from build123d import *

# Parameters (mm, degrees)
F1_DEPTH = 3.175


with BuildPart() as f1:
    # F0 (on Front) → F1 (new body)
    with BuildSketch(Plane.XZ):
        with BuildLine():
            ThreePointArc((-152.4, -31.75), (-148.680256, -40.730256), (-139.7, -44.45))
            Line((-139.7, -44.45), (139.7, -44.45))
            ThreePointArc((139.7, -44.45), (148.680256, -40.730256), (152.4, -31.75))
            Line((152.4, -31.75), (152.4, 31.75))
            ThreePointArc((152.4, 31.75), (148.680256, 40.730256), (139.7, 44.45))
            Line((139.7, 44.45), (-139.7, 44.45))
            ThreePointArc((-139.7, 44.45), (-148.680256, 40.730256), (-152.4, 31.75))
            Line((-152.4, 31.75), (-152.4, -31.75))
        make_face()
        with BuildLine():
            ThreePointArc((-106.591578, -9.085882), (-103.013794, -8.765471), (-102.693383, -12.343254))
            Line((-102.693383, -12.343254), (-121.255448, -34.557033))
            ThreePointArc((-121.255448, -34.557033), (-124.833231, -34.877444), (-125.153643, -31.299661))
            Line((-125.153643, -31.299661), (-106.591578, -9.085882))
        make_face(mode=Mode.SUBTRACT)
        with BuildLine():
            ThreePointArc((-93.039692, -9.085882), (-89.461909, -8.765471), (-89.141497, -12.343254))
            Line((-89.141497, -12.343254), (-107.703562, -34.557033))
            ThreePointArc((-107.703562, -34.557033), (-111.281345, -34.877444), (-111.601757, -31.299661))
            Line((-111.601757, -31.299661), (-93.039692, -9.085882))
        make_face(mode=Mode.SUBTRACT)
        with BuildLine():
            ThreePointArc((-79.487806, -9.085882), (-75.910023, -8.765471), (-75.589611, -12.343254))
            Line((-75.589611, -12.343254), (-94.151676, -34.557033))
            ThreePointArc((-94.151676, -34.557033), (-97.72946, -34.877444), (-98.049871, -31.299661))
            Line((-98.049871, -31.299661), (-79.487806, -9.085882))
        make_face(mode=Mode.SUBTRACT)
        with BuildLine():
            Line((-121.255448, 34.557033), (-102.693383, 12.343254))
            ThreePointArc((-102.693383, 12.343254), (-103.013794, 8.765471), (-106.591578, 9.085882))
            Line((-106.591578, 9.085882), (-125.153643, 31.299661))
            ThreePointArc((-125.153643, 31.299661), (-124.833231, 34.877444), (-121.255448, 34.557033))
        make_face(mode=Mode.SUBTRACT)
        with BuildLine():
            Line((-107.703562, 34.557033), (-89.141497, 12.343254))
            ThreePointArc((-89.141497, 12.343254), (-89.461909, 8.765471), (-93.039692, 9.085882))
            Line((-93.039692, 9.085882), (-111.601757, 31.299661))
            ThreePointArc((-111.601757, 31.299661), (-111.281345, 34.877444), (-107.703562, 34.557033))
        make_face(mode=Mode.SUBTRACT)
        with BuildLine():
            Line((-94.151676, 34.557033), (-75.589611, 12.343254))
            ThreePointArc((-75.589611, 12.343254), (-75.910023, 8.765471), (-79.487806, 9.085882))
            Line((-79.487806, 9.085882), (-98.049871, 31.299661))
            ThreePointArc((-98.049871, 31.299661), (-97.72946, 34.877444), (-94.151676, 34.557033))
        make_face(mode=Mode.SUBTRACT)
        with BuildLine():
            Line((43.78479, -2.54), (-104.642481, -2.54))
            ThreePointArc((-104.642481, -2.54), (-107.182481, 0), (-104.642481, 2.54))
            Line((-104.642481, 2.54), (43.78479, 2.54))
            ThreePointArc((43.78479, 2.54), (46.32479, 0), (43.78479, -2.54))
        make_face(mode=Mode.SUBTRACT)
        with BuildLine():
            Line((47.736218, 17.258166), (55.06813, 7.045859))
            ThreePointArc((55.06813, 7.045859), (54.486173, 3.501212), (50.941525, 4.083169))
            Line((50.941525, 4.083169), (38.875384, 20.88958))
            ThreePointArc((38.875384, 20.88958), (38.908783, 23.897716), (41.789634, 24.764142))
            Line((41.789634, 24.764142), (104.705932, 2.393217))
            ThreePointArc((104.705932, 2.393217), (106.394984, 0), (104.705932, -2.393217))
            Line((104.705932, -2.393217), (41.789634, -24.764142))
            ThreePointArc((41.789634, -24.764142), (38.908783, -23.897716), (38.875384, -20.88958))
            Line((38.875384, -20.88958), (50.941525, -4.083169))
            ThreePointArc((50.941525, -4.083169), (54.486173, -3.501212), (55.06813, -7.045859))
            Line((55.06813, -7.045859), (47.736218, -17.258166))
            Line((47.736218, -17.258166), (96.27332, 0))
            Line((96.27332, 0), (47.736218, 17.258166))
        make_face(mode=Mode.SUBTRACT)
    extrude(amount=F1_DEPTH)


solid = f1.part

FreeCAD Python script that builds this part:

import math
import FreeCAD as App
import Part
import Sketcher
Q = App.Units.Quantity

doc = App.newDocument("Part")
body = doc.addObject("PartDesign::Body", "Body")

# Sketch on XZ plane
sketch1 = body.newObject("Sketcher::SketchObject", "Sketch")
sketch1.AttachmentSupport = (doc.getObject("XZ_Plane"), [""])
sketch1.MapMode = "FlatFace"
sketch1.addGeometry([
    Part.ArcOfCircle(Part.Circle(App.Vector(-139.7, -31.75, 0), App.Vector(0, 0, 1), 12.7), math.radians(-179.999998), math.radians(-90.000002)),  # 0
    Part.LineSegment(App.Vector(-139.7, -44.45, 0), App.Vector(139.7, -44.45, 0)),  # 1
    Part.ArcOfCircle(Part.Circle(App.Vector(139.7, -31.75, 0), App.Vector(0, 0, 1), 12.7), math.radians(-89.999998), math.radians(-0.000002)),  # 2
    Part.LineSegment(App.Vector(152.4, -31.75, 0), App.Vector(152.4, 31.75, 0)),  # 3
    Part.ArcOfCircle(Part.Circle(App.Vector(139.7, 31.75, 0), App.Vector(0, 0, 1), 12.7), math.radians(0.000002), math.radians(89.999998)),  # 4
    Part.LineSegment(App.Vector(139.7, 44.45, 0), App.Vector(-139.7, 44.45, 0)),  # 5
    Part.ArcOfCircle(Part.Circle(App.Vector(-139.7, 31.75, 0), App.Vector(0, 0, 1), 12.7), math.radians(90.000002), math.radians(179.999998)),  # 6
    Part.LineSegment(App.Vector(-152.4, 31.75, 0), App.Vector(-152.4, -31.75, 0)),  # 7
    Part.LineSegment(App.Vector(-125.153643, -31.299661, 0), App.Vector(-106.591578, -9.085882, 0)),  # 8
    Part.ArcOfCircle(Part.Circle(App.Vector(-104.642481, -10.714568, 0), App.Vector(0, 0, 1), 2.54), math.radians(-39.882478), math.radians(140.11752)),  # 9
    Part.LineSegment(App.Vector(-102.693383, -12.343254, 0), App.Vector(-121.255448, -34.557033, 0)),  # 10
    Part.ArcOfCircle(Part.Circle(App.Vector(-123.204545, -32.928346, 0), App.Vector(0, 0, 1), 2.54), math.radians(140.117537), math.radians(320.117505)),  # 11
    Part.LineSegment(App.Vector(-111.601757, -31.299661, 0), App.Vector(-93.039692, -9.085882, 0)),  # 12
    Part.ArcOfCircle(Part.Circle(App.Vector(-91.090595, -10.714569, 0), App.Vector(0, 0, 1), 2.54), math.radians(-39.882463), math.radians(140.117505)),  # 13
    Part.LineSegment(App.Vector(-89.141497, -12.343254, 0), App.Vector(-107.703562, -34.557033, 0)),  # 14
    Part.ArcOfCircle(Part.Circle(App.Vector(-109.652659, -32.928346, 0), App.Vector(0, 0, 1), 2.54), math.radians(140.117537), math.radians(320.117505)),  # 15
    Part.LineSegment(App.Vector(-98.049871, -31.299661, 0), App.Vector(-79.487806, -9.085882, 0)),  # 16
    Part.ArcOfCircle(Part.Circle(App.Vector(-77.538709, -10.714569, 0), App.Vector(0, 0, 1), 2.54), math.radians(-39.882463), math.radians(140.117505)),  # 17
    Part.LineSegment(App.Vector(-75.589611, -12.343254, 0), App.Vector(-94.151676, -34.557033, 0)),  # 18
    Part.ArcOfCircle(Part.Circle(App.Vector(-96.100773, -32.928347, 0), App.Vector(0, 0, 1), 2.54), math.radians(140.117522), math.radians(320.11752)),  # 19
    Part.ArcOfCircle(Part.Circle(App.Vector(43.78479, 0, 0), App.Vector(0, 0, 1), 2.54), math.radians(-90), math.radians(90)),  # 20
    Part.LineSegment(App.Vector(43.78479, -2.54, 0), App.Vector(-104.642481, -2.54, 0)),  # 21
    Part.ArcOfCircle(Part.Circle(App.Vector(-104.642481, 0, 0), App.Vector(0, 0, 1), 2.54), math.radians(90), math.radians(270)),  # 22
    Part.LineSegment(App.Vector(-104.642481, 2.54, 0), App.Vector(43.78479, 2.54, 0)),  # 23
    Part.ArcOfCircle(Part.Circle(App.Vector(-123.204545, 32.928346, 0), App.Vector(0, 0, 1), 2.54), math.radians(39.882495), math.radians(219.882463)),  # 24
    Part.LineSegment(App.Vector(-121.255448, 34.557033, 0), App.Vector(-102.693383, 12.343254, 0)),  # 25
    Part.ArcOfCircle(Part.Circle(App.Vector(-104.642481, 10.714568, 0), App.Vector(0, 0, 1), 2.54), math.radians(-140.11752), math.radians(39.882478)),  # 26
    Part.LineSegment(App.Vector(-106.591578, 9.085882, 0), App.Vector(-125.153643, 31.299661, 0)),  # 27
    Part.ArcOfCircle(Part.Circle(App.Vector(-109.652659, 32.928346, 0), App.Vector(0, 0, 1), 2.54), math.radians(39.882495), math.radians(219.882463)),  # 28
    Part.LineSegment(App.Vector(-107.703562, 34.557033, 0), App.Vector(-89.141497, 12.343254, 0)),  # 29
    Part.ArcOfCircle(Part.Circle(App.Vector(-91.090595, 10.714569, 0), App.Vector(0, 0, 1), 2.54), math.radians(-140.117505), math.radians(39.882463)),  # 30
    Part.LineSegment(App.Vector(-93.039692, 9.085882, 0), App.Vector(-111.601757, 31.299661, 0)),  # 31
    Part.ArcOfCircle(Part.Circle(App.Vector(-96.100773, 32.928347, 0), App.Vector(0, 0, 1), 2.54), math.radians(39.88248), math.radians(219.882478)),  # 32
    Part.LineSegment(App.Vector(-94.151676, 34.557033, 0), App.Vector(-75.589611, 12.343254, 0)),  # 33
    Part.ArcOfCircle(Part.Circle(App.Vector(-77.538709, 10.714569, 0), App.Vector(0, 0, 1), 2.54), math.radians(-140.117505), math.radians(39.882463)),  # 34
    Part.LineSegment(App.Vector(-79.487806, 9.085882, 0), App.Vector(-98.049871, 31.299661, 0)),  # 35
    Part.LineSegment(App.Vector(96.27332, 0, 0), App.Vector(47.736218, 17.258166, 0)),  # 36
    Part.LineSegment(App.Vector(47.736218, 17.258166, 0), App.Vector(55.06813, 7.045859, 0)),  # 37
    Part.ArcOfCircle(Part.Circle(App.Vector(53.004827, 5.564514, 0), App.Vector(0, 0, 1), 2.54), math.radians(-144.323596), math.radians(35.676399)),  # 38
    Part.LineSegment(App.Vector(50.941525, 4.083169, 0), App.Vector(38.875384, 20.88958, 0)),  # 39
    Part.ArcOfCircle(Part.Circle(App.Vector(40.938687, 22.370925, 0), App.Vector(0, 0, 1), 2.54), math.radians(70.426328), math.radians(215.676396)),  # 40
    Part.LineSegment(App.Vector(41.789634, 24.764142, 0), App.Vector(104.705932, 2.393217, 0)),  # 41
    Part.ArcOfCircle(Part.Circle(App.Vector(103.854984, 0, 0), App.Vector(0, 0, 1), 2.54), math.radians(-70.426312), math.radians(70.426312)),  # 42
    Part.LineSegment(App.Vector(104.705932, -2.393217, 0), App.Vector(41.789634, -24.764142, 0)),  # 43
    Part.ArcOfCircle(Part.Circle(App.Vector(40.938687, -22.370925, 0), App.Vector(0, 0, 1), 2.54), math.radians(144.323604), math.radians(289.573672)),  # 44
    Part.LineSegment(App.Vector(38.875384, -20.88958, 0), App.Vector(50.941525, -4.083169, 0)),  # 45
    Part.ArcOfCircle(Part.Circle(App.Vector(53.004827, -5.564514, 0), App.Vector(0, 0, 1), 2.54), math.radians(-35.676399), math.radians(144.323596)),  # 46
    Part.LineSegment(App.Vector(55.06813, -7.045859, 0), App.Vector(47.736218, -17.258166, 0)),  # 47
    Part.LineSegment(App.Vector(47.736218, -17.258166, 0), App.Vector(96.27332, 0, 0)),  # 48
], False)
sketch1.addConstraint([
    Sketcher.Constraint("Coincident", 0, 2, 1, 1),
    Sketcher.Constraint("Coincident", 1, 2, 2, 1),
    Sketcher.Constraint("Coincident", 2, 2, 3, 1),
    Sketcher.Constraint("Coincident", 3, 2, 4, 1),
    Sketcher.Constraint("Coincident", 4, 2, 5, 1),
    Sketcher.Constraint("Coincident", 5, 2, 6, 1),
    Sketcher.Constraint("Coincident", 6, 2, 7, 1),
    Sketcher.Constraint("Coincident", 7, 2, 0, 1),
    Sketcher.Constraint("Coincident", 8, 2, 9, 2),
    Sketcher.Constraint("Coincident", 9, 1, 10, 1),
    Sketcher.Constraint("Coincident", 10, 2, 11, 2),
    Sketcher.Constraint("Coincident", 11, 1, 8, 1),
    Sketcher.Constraint("Coincident", 12, 2, 13, 2),
    Sketcher.Constraint("Coincident", 13, 1, 14, 1),
    Sketcher.Constraint("Coincident", 14, 2, 15, 2),
    Sketcher.Constraint("Coincident", 15, 1, 12, 1),
    Sketcher.Constraint("Coincident", 16, 2, 17, 2),
    Sketcher.Constraint("Coincident", 17, 1, 18, 1),
    Sketcher.Constraint("Coincident", 18, 2, 19, 2),
    Sketcher.Constraint("Coincident", 19, 1, 16, 1),
    Sketcher.Constraint("Coincident", 20, 1, 21, 1),
    Sketcher.Constraint("Coincident", 21, 2, 22, 2),
    Sketcher.Constraint("Coincident", 22, 1, 23, 1),
    Sketcher.Constraint("Coincident", 23, 2, 20, 2),
    Sketcher.Constraint("Coincident", 24, 1, 25, 1),
    Sketcher.Constraint("Coincident", 25, 2, 26, 2),
    Sketcher.Constraint("Coincident", 26, 1, 27, 1),
    Sketcher.Constraint("Coincident", 27, 2, 24, 2),
    Sketcher.Constraint("Coincident", 28, 1, 29, 1),
    Sketcher.Constraint("Coincident", 29, 2, 30, 2),
    Sketcher.Constraint("Coincident", 30, 1, 31, 1),
    Sketcher.Constraint("Coincident", 31, 2, 28, 2),
    Sketcher.Constraint("Coincident", 32, 1, 33, 1),
    Sketcher.Constraint("Coincident", 33, 2, 34, 2),
    Sketcher.Constraint("Coincident", 34, 1, 35, 1),
    Sketcher.Constraint("Coincident", 35, 2, 32, 2),
    Sketcher.Constraint("Coincident", 36, 2, 37, 1),
    Sketcher.Constraint("Coincident", 37, 2, 38, 2),
    Sketcher.Constraint("Coincident", 38, 1, 39, 1),
    Sketcher.Constraint("Coincident", 39, 2, 40, 2),
    Sketcher.Constraint("Coincident", 40, 1, 41, 1),
    Sketcher.Constraint("Coincident", 41, 2, 42, 2),
    Sketcher.Constraint("Coincident", 42, 1, 43, 1),
    Sketcher.Constraint("Coincident", 43, 2, 44, 2),
    Sketcher.Constraint("Coincident", 44, 1, 45, 1),
    Sketcher.Constraint("Coincident", 45, 2, 46, 2),
    Sketcher.Constraint("Coincident", 46, 1, 47, 1),
    Sketcher.Constraint("Coincident", 47, 2, 48, 1),
    Sketcher.Constraint("Coincident", 48, 2, 36, 1),
    Sketcher.Constraint("Horizontal", 1),
    Sketcher.Constraint("Vertical", 3),
    Sketcher.Constraint("Horizontal", 5),
    Sketcher.Constraint("Vertical", 7),
    Sketcher.Constraint("Horizontal", 21),
    Sketcher.Constraint("Horizontal", 23),
    Sketcher.Constraint("PointOnObject", 20, 3, -1),
    Sketcher.Constraint("PointOnObject", 42, 3, -1),
    Sketcher.Constraint("PointOnObject", 48, 2, -1),
    Sketcher.Constraint("Radius", 0, Q("0.5 in")),
    Sketcher.Constraint("Radius", 2, Q("0.5 in")),
    Sketcher.Constraint("Radius", 4, Q("0.5 in")),
    Sketcher.Constraint("Radius", 6, Q("0.5 in")),
    Sketcher.Constraint("Radius", 9, Q("0.1 in")),
    Sketcher.Constraint("Radius", 11, Q("0.1 in")),
    Sketcher.Constraint("Radius", 13, Q("0.1 in")),
    Sketcher.Constraint("Radius", 15, Q("0.1 in")),
    Sketcher.Constraint("Radius", 17, Q("0.1 in")),
    Sketcher.Constraint("Radius", 19, Q("0.1 in")),
    Sketcher.Constraint("Radius", 20, Q("0.1 in")),
    Sketcher.Constraint("Radius", 24, Q("0.1 in")),
    Sketcher.Constraint("Radius", 26, Q("0.1 in")),
    Sketcher.Constraint("Radius", 28, Q("0.1 in")),
    Sketcher.Constraint("Radius", 30, Q("0.1 in")),
    Sketcher.Constraint("Radius", 32, Q("0.1 in")),
    Sketcher.Constraint("Radius", 34, Q("0.1 in")),
    Sketcher.Constraint("Radius", 38, Q("0.1 in")),
    Sketcher.Constraint("Radius", 40, Q("0.1 in")),
    Sketcher.Constraint("Radius", 42, Q("0.1 in")),
    Sketcher.Constraint("Radius", 44, Q("0.1 in")),
    Sketcher.Constraint("Radius", 46, Q("0.1 in")),
    Sketcher.Constraint("DistanceX", 1, 1, 1, 2, Q("11 in")),
    Sketcher.Constraint("DistanceX", 5, 2, 5, 1, Q("11 in")),
    Sketcher.Constraint("DistanceY", 3, 1, 3, 2, Q("2.5 in")),
    Sketcher.Constraint("DistanceY", 7, 2, 7, 1, Q("2.5 in")),
    Sketcher.Constraint("DistanceX", -1, 1, 2, 2, Q("6 in")),
    Sketcher.Constraint("DistanceX", 6, 2, -1, 1, Q("6 in")),
    Sketcher.Constraint("DistanceX", 0, 2, -1, 1, Q("5.5 in")),
    Sketcher.Constraint("DistanceX", -1, 1, 4, 2, Q("5.5 in")),
    Sketcher.Constraint("DistanceY", 0, 3, -1, 1, Q("1.25 in")),
    Sketcher.Constraint("DistanceY", -1, 1, 4, 3, Q("1.25 in")),
    Sketcher.Constraint("DistanceY", 2, 2, -1, 1, Q("1.25 in")),
    Sketcher.Constraint("DistanceY", -1, 1, 6, 2, Q("1.25 in")),
    Sketcher.Constraint("Distance", 39, 20.689302),
    Sketcher.Constraint("Distance", 45, 20.689302),
    Sketcher.Constraint("DistanceX", 21, 2, 21, 1, 148.427271),
    Sketcher.Constraint("DistanceX", 23, 1, 23, 2, 148.427271),
    Sketcher.Constraint("Distance", 8, 28.948268),
    Sketcher.Constraint("Distance", 10, 28.948268),
    Sketcher.Constraint("Distance", 12, 28.948268),
    Sketcher.Constraint("Distance", 14, 28.948268),
    Sketcher.Constraint("Distance", 16, 28.948268),
    Sketcher.Constraint("Distance", 18, 28.948268),
    Sketcher.Constraint("Distance", 25, 28.948268),
    Sketcher.Constraint("Distance", 27, 28.948268),
    Sketcher.Constraint("Distance", 29, 28.948268),
    Sketcher.Constraint("Distance", 31, 28.948268),
    Sketcher.Constraint("Distance", 33, 28.948268),
    Sketcher.Constraint("Distance", 35, 28.948268),
    Sketcher.Constraint("Distance", 37, 12.57172),
    Sketcher.Constraint("Distance", 47, 12.57172),
    Sketcher.Constraint("DistanceX", 9, 3, -1, 1, 104.642481),
    Sketcher.Constraint("DistanceY", 9, 3, -1, 1, 10.714568),
    Sketcher.Constraint("DistanceY", 13, 3, -1, 1, 10.714569),
    Sketcher.Constraint("DistanceX", 15, 3, -1, 1, 109.652659),
    Sketcher.Constraint("DistanceX", 17, 3, -1, 1, 77.538709),
    Sketcher.Constraint("DistanceY", 17, 3, -1, 1, 10.714569),
    Sketcher.Constraint("DistanceX", -1, 1, 20, 3, 43.78479),
    Sketcher.Constraint("DistanceX", 22, 3, -1, 1, 104.642481),
    Sketcher.Constraint("DistanceX", 26, 3, -1, 1, 104.642481),
    Sketcher.Constraint("DistanceY", -1, 1, 26, 3, 10.714568),
    Sketcher.Constraint("DistanceX", 28, 3, -1, 1, 109.652659),
    Sketcher.Constraint("DistanceY", -1, 1, 30, 3, 10.714569),
    Sketcher.Constraint("DistanceX", 34, 3, -1, 1, 77.538709),
    Sketcher.Constraint("DistanceY", -1, 1, 34, 3, 10.714569),
    Sketcher.Constraint("DistanceX", 8, 2, -1, 1, 106.591578),
    Sketcher.Constraint("DistanceX", 10, 2, -1, 1, 121.255448),
    Sketcher.Constraint("DistanceY", 11, 1, -1, 1, 31.299661),
    Sketcher.Constraint("DistanceY", 15, 1, -1, 1, 31.299661),
    Sketcher.Constraint("DistanceX", 17, 1, -1, 1, 75.589611),
    Sketcher.Constraint("DistanceX", 19, 1, -1, 1, 98.049871),
    Sketcher.Constraint("DistanceY", 19, 1, -1, 1, 31.299661),
    Sketcher.Constraint("DistanceX", -1, 1, 20, 1, 43.78479),
    Sketcher.Constraint("DistanceX", 22, 1, -1, 1, 104.642481),
    Sketcher.Constraint("DistanceX", 26, 1, -1, 1, 106.591578),
    Sketcher.Constraint("DistanceY", -1, 1, 27, 2, 31.299661),
    Sketcher.Constraint("DistanceX", 28, 1, -1, 1, 107.703562),
    Sketcher.Constraint("DistanceY", -1, 1, 30, 1, 9.085882),
    Sketcher.Constraint("DistanceY", -1, 1, 31, 2, 31.299661),
    Sketcher.Constraint("DistanceX", 33, 2, -1, 1, 75.589611),
    Sketcher.Constraint("DistanceY", -1, 1, 34, 1, 9.085882),
    Sketcher.Constraint("DistanceX", 35, 2, -1, 1, 98.049871),
    Sketcher.Constraint("DistanceX", -1, 1, 37, 2, 55.06813),
    Sketcher.Constraint("DistanceY", -1, 1, 37, 2, 7.045859),
    Sketcher.Constraint("DistanceY", -1, 1, 38, 1, 4.083169),
    Sketcher.Constraint("DistanceY", -1, 1, 39, 2, 20.88958),
    Sketcher.Constraint("DistanceY", 43, 2, -1, 1, 24.764142),
    Sketcher.Constraint("DistanceY", 44, 1, -1, 1, 20.88958),
    Sketcher.Constraint("DistanceY", 45, 2, -1, 1, 4.083169),
    Sketcher.Constraint("DistanceX", -1, 1, 46, 1, 55.06813),
    Sketcher.Constraint("DistanceY", 46, 1, -1, 1, 7.045859),
    Sketcher.Constraint("DistanceX", -1, 1, 48, 2, 96.27332),
    Sketcher.Constraint("Distance", 36, 51.514023),
    Sketcher.Constraint("Distance", 41, 66.775136),
    Sketcher.Constraint("Distance", 43, 66.775136),
    Sketcher.Constraint("Distance", 48, 51.514023),
    Sketcher.Constraint("DistanceX", 11, 3, -1, 1, 123.204545),
    Sketcher.Constraint("DistanceX", 13, 3, -1, 1, 91.090595),
    Sketcher.Constraint("DistanceY", 15, 3, -1, 1, 32.928346),
    Sketcher.Constraint("DistanceX", 19, 3, -1, 1, 96.100773),
    Sketcher.Constraint("DistanceX", 24, 3, -1, 1, 123.204545),
    Sketcher.Constraint("DistanceY", -1, 1, 28, 3, 32.928346),
    Sketcher.Constraint("DistanceX", 32, 3, -1, 1, 96.100773),
    Sketcher.Constraint("DistanceX", -1, 1, 38, 3, 53.004827),
    Sketcher.Constraint("DistanceX", -1, 1, 40, 3, 40.938687),
    Sketcher.Constraint("DistanceX", -1, 1, 42, 3, 103.854984),
    Sketcher.Constraint("DistanceX", -1, 1, 44, 3, 40.938687),
    Sketcher.Constraint("DistanceX", -1, 1, 46, 3, 53.004827),
    Sketcher.Constraint("DistanceX", 13, 1, -1, 1, 89.141497),
    Sketcher.Constraint("DistanceX", 24, 1, -1, 1, 121.255448),
    Sketcher.Constraint("DistanceX", -1, 1, 40, 1, 41.789634),
])
pad1 = body.newObject("PartDesign::Pad", "Pad")
pad1.Profile = sketch1
pad1.Length = Q("0.125 in")

doc.recompute()
